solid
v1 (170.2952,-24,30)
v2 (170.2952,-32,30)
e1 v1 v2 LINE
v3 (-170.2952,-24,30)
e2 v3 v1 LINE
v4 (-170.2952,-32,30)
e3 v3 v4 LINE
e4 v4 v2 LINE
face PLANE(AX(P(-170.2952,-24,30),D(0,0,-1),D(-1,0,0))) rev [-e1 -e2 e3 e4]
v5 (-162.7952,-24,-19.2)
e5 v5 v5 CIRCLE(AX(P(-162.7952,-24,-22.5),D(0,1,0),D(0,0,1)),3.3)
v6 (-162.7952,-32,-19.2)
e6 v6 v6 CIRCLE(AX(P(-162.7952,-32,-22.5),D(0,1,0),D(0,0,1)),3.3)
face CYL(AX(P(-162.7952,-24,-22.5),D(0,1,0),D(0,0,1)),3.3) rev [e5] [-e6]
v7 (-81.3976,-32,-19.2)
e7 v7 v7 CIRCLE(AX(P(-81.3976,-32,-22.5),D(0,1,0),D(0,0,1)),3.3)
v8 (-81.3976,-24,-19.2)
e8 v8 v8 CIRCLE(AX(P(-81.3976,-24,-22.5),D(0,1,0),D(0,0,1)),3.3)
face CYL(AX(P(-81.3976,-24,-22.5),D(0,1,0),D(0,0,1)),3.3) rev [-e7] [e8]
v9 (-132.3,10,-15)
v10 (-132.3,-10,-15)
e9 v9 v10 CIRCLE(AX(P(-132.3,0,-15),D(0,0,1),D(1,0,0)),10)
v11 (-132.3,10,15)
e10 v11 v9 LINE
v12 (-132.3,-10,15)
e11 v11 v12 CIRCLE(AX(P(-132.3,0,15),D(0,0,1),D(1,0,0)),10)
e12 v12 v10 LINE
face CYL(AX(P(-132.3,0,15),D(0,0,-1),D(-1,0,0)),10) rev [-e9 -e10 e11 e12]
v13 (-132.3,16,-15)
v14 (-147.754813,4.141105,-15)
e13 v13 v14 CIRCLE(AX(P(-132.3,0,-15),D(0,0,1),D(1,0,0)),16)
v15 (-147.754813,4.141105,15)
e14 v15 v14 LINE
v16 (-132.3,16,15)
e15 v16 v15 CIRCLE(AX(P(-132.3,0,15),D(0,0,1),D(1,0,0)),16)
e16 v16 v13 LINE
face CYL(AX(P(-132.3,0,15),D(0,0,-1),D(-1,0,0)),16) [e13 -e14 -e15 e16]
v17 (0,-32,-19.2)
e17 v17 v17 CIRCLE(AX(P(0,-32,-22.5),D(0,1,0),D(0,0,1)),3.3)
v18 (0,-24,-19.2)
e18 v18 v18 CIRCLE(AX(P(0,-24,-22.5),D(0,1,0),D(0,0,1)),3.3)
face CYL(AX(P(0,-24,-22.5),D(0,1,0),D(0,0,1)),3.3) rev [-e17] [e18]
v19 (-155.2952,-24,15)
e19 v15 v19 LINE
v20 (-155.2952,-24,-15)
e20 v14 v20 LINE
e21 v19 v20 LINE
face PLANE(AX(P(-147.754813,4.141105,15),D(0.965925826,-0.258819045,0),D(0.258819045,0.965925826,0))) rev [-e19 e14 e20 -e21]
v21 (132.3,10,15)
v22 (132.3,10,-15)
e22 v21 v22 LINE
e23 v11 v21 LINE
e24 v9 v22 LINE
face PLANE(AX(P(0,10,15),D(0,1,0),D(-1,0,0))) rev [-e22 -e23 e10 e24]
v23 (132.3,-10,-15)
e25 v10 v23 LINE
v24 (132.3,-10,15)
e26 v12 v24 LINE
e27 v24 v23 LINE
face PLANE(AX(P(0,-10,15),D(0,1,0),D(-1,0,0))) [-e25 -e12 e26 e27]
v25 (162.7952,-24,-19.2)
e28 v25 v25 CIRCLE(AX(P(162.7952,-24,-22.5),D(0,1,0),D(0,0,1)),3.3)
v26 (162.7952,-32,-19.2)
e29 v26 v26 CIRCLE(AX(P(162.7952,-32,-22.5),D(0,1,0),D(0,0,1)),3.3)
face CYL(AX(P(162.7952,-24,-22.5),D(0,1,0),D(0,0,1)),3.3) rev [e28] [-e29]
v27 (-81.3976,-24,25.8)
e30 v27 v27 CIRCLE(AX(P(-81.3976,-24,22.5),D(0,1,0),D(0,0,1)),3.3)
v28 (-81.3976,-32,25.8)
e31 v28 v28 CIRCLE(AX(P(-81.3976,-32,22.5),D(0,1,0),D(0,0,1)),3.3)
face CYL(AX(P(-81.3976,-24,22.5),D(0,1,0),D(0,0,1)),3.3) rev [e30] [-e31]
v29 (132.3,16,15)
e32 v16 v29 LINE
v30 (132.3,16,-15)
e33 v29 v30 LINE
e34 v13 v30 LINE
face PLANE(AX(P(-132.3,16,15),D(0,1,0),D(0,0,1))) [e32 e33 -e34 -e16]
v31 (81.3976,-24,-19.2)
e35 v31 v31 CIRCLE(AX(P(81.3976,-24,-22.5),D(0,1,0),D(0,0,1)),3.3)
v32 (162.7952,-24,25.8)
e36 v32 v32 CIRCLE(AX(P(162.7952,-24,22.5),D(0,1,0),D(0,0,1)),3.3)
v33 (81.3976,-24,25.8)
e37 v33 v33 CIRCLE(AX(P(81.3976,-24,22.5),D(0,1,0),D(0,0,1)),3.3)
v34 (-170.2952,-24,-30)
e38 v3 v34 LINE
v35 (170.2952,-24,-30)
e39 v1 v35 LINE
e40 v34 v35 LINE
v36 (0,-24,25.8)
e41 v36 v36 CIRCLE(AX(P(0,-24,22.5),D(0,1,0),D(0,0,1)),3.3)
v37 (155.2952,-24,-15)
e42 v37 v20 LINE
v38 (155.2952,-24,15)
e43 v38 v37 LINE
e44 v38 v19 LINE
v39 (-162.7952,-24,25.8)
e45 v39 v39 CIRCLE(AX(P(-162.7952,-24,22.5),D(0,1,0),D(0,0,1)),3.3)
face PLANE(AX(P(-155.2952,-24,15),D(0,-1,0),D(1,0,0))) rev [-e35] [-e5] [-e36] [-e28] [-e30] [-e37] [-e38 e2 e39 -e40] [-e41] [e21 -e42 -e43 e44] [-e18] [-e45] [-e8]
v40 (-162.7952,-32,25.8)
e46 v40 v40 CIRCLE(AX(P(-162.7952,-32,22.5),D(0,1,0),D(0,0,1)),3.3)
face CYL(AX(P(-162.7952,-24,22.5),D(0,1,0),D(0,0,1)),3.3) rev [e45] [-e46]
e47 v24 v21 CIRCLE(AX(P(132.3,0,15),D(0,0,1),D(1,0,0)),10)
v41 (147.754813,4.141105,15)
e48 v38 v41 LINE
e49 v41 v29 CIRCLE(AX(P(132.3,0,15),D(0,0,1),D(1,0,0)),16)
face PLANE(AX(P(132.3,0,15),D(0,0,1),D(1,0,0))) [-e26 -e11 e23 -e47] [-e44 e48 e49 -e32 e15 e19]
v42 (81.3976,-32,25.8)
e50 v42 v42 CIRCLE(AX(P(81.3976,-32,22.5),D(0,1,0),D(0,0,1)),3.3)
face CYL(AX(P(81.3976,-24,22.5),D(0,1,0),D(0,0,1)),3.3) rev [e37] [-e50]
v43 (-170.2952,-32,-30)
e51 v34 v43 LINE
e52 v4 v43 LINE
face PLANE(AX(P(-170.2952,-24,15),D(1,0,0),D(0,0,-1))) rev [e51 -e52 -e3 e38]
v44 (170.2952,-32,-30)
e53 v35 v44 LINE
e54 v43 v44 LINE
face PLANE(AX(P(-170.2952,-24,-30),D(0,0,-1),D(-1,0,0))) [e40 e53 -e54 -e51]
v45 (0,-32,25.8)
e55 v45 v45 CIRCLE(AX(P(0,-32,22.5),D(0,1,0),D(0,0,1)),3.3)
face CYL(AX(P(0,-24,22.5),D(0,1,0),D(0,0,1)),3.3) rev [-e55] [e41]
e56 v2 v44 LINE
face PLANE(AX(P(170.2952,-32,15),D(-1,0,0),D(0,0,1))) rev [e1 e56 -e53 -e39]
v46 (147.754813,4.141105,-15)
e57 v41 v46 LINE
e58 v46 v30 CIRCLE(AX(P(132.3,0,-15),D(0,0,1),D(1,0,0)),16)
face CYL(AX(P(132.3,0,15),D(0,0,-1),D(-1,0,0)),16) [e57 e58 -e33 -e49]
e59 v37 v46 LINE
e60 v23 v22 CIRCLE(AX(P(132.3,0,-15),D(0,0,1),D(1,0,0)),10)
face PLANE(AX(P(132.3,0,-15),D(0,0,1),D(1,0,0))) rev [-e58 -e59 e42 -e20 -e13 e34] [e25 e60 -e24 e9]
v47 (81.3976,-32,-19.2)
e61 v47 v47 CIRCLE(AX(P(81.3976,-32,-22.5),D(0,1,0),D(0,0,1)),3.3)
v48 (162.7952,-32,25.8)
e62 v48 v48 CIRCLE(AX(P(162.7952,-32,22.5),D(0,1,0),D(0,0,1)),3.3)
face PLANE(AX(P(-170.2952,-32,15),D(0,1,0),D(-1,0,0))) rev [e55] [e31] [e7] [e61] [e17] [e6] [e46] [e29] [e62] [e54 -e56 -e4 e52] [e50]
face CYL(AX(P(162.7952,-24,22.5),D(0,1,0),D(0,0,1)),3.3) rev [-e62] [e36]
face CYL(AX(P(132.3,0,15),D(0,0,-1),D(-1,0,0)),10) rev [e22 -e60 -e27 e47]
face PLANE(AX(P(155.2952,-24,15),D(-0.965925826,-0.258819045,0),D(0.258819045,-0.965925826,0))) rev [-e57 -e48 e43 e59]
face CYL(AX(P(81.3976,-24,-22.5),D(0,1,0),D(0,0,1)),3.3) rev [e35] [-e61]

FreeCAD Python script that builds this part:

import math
import FreeCAD as App
import Part
import Sketcher
Q = App.Units.Quantity


def add_polygon(sketch, points):
    """Adds a closed chain of lines whose ends are joined by coincident constraints."""
    first, n = sketch.GeometryCount, len(points)
    for a, b in zip(points, points[1:] + points[:1]):
        sketch.addGeometry(Part.LineSegment(App.Vector(*a, 0), App.Vector(*b, 0)), False)
    for i in range(n):
        sketch.addConstraint(Sketcher.Constraint("Coincident", first + i, 2, first + (i + 1) % n, 1))

doc = App.newDocument("Part")
body = doc.addObject("PartDesign::Body", "Body")

# Sketch on XY plane
sketch1 = body.newObject("Sketcher::SketchObject", "Sketch")
sketch1.AttachmentSupport = (doc.getObject("XY_Plane"), [""])
sketch1.MapMode = "FlatFace"
sketch1.addGeometry(Part.LineSegment(App.Vector(132, 16, 0), App.Vector(-132, 16, 0)), False)
sketch1.addGeometry(Part.ArcOfCircle(Part.Circle(App.Vector(-132, 0, 0), App.Vector(0, 0, 1), 16), math.radians(90), math.radians(165)), False)
sketch1.addGeometry(Part.LineSegment(App.Vector(-148, 4, 0), App.Vector(-155, -24, 0)), False)
sketch1.addGeometry(Part.LineSegment(App.Vector(-155, -24, 0), App.Vector(-170, -24, 0)), False)
sketch1.addGeometry(Part.LineSegment(App.Vector(-170, -24, 0), App.Vector(-170, -32, 0)), False)
sketch1.addGeometry(Part.LineSegment(App.Vector(-170, -32, 0), App.Vector(170, -32, 0)), False)
sketch1.addGeometry(Part.LineSegment(App.Vector(170, -32, 0), App.Vector(170, -24, 0)), False)
sketch1.addGeometry(Part.LineSegment(App.Vector(170, -24, 0), App.Vector(155, -24, 0)), False)
sketch1.addGeometry(Part.LineSegment(App.Vector(155, -24, 0), App.Vector(148, 4, 0)), False)
sketch1.addGeometry(Part.ArcOfCircle(Part.Circle(App.Vector(132, 0, 0), App.Vector(0, 0, 1), 16), math.radians(15), math.radians(90)), False)
sketch1.addGeometry(Part.LineSegment(App.Vector(-132, 10, 0), App.Vector(132, 10, 0)), False)
sketch1.addGeometry(Part.ArcOfCircle(Part.Circle(App.Vector(132, 0, 0), App.Vector(0, 0, 1), 10), math.radians(-90), math.radians(90)), False)
sketch1.addGeometry(Part.LineSegment(App.Vector(132, -10, 0), App.Vector(-132, -10, 0)), False)
sketch1.addGeometry(Part.ArcOfCircle(Part.Circle(App.Vector(-132, 0, 0), App.Vector(0, 0, 1), 10), math.radians(90), math.radians(270)), False)
sketch1.addConstraint(Sketcher.Constraint("Tangent", 0, 2, 1, 1))
sketch1.addConstraint(Sketcher.Constraint("Tangent", 1, 2, 2, 1))
sketch1.addConstraint(Sketcher.Constraint("Coincident", 2, 2, 3, 1))
sketch1.addConstraint(Sketcher.Constraint("Coincident", 3, 2, 4, 1))
sketch1.addConstraint(Sketcher.Constraint("Coincident", 4, 2, 5, 1))
sketch1.addConstraint(Sketcher.Constraint("Coincident", 5, 2, 6, 1))
sketch1.addConstraint(Sketcher.Constraint("Coincident", 6, 2, 7, 1))
sketch1.addConstraint(Sketcher.Constraint("Coincident", 7, 2, 8, 1))
sketch1.addConstraint(Sketcher.Constraint("Tangent", 8, 2, 9, 1))
sketch1.addConstraint(Sketcher.Constraint("Tangent", 9, 2, 0, 1))
sketch1.addConstraint(Sketcher.Constraint("Tangent", 10, 2, 11, 2))
sketch1.addConstraint(Sketcher.Constraint("Tangent", 11, 1, 12, 1))
sketch1.addConstraint(Sketcher.Constraint("Tangent", 12, 2, 13, 2))
sketch1.addConstraint(Sketcher.Constraint("Tangent", 13, 1, 10, 1))
sketch1.addConstraint(Sketcher.Constraint("Horizontal", 0))
sketch1.addConstraint(Sketcher.Constraint("Horizontal", 3))
sketch1.addConstraint(Sketcher.Constraint("Vertical", 4))
sketch1.addConstraint(Sketcher.Constraint("Horizontal", 5))
sketch1.addConstraint(Sketcher.Constraint("Vertical", 6))
sketch1.addConstraint(Sketcher.Constraint("Horizontal", 7))
sketch1.addConstraint(Sketcher.Constraint("Horizontal", 10))
sketch1.addConstraint(Sketcher.Constraint("Horizontal", 12))
sketch1.addConstraint(Sketcher.Constraint("Coincident", 11, 3, 9, 3))
sketch1.addConstraint(Sketcher.Constraint("Coincident", 13, 3, 1, 3))
sketch1.addConstraint(Sketcher.Constraint("Symmetric", 1, 3, 9, 3, -1, 1))
sketch1.addConstraint(Sketcher.Constraint("Symmetric", 3, 2, 6, 2, -2))
sketch1.addConstraint(Sketcher.Constraint("Horizontal", 1, 2, 8, 2))
sketch1.addConstraint(Sketcher.Constraint("Radius", 1, Q("16 mm")))
sketch1.addConstraint(Sketcher.Constraint("Radius", 11, Q("10 mm")))
sketch1.addConstraint(Sketcher.Constraint("DistanceX", 3, 2, 3, 1, Q("15 mm")))
sketch1.addConstraint(Sketcher.Constraint("DistanceY", 4, 2, 4, 1, Q("8 mm")))
sketch1.addConstraint(Sketcher.Constraint("Angle", 2, Q("-105 deg")))
sketch1.addConstraint(Sketcher.Constraint("DistanceX", 0, 2, 0, 1, Q("264.6 mm")))
sketch1.addConstraint(Sketcher.Constraint("DistanceY", 2, 2, -1, 1, Q("24 mm")))
pad1 = body.newObject("PartDesign::Pad", "Pad")
pad1.Profile = sketch1
pad1.Length = 30
pad1.Midplane = True

# Sketch on XZ plane
sketch2 = body.newObject("Sketcher::SketchObject", "Sketch001")
sketch2.AttachmentSupport = (doc.getObject("XZ_Plane"), [""])
sketch2.MapMode = "FlatFace"
sketch2.AttachmentOffset = App.Placement(App.Vector(0, 0, 32), App.Rotation())
add_polygon(sketch2, [(-170, 30), (-170, 15), (170, 15), (170, 30)])  # lines 0-3
sketch2.addConstraint(Sketcher.Constraint("Vertical", 0))
sketch2.addConstraint(Sketcher.Constraint("Horizontal", 1))
sketch2.addConstraint(Sketcher.Constraint("Vertical", 2))
sketch2.addConstraint(Sketcher.Constraint("Horizontal", 3))
sketch2.addConstraint(Sketcher.Constraint("DistanceY", 0, 2, 0, 1, Q("15 mm")))
sketch2.addConstraint(Sketcher.Constraint("DistanceY", -1, 1, 0, 2, Q("15 mm")))
sketch2.addConstraint(Sketcher.Constraint("DistanceX", 1, 1, 1, 2, Q("340.590399 mm")))
sketch2.addConstraint(Sketcher.Constraint("DistanceX", 0, 2, -1, 1, Q("170.2952 mm")))
pad2 = body.newObject("PartDesign::Pad", "Pad001")
pad2.Profile = sketch2
pad2.Length = 8
pad2.Reversed = True
doc.recompute()

mirrored = body.newObject("PartDesign::Mirrored", "Mirrored")
mirrored.Originals = [pad2]
mirrored.MirrorPlane = (doc.getObject("XY_Plane"), [""])
body.Tip = mirrored

# Sketch on XZ plane
sketch3 = body.newObject("Sketcher::SketchObject", "Sketch002")
sketch3.AttachmentSupport = (doc.getObject("XZ_Plane"), [""])
sketch3.MapMode = "FlatFace"
sketch3.AttachmentOffset = App.Placement(App.Vector(0, 0, 24), App.Rotation())
sketch3.addGeometry(Part.Circle(App.Vector(-162.8, -22.5, 0), App.Vector(0, 0, 1), 3.3), False)
sketch3.addGeometry(Part.Circle(App.Vector(-162.8, 22.5, 0), App.Vector(0, 0, 1), 3.3), False)
sketch3.addGeometry(Part.Circle(App.Vector(-81.4, 22.5, 0), App.Vector(0, 0, 1), 3.3), False)
sketch3.addGeometry(Part.Circle(App.Vector(-81.4, -22.5, 0), App.Vector(0, 0, 1), 3.3), False)
sketch3.addGeometry(Part.Circle(App.Vector(0, 22.5, 0), App.Vector(0, 0, 1), 3.3), False)
sketch3.addGeometry(Part.Circle(App.Vector(0, -22.5, 0), App.Vector(0, 0, 1), 3.3), False)
sketch3.addGeometry(Part.Circle(App.Vector(81.4, 22.5, 0), App.Vector(0, 0, 1), 3.3), False)
sketch3.addGeometry(Part.Circle(App.Vector(81.4, -22.5, 0), App.Vector(0, 0, 1), 3.3), False)
sketch3.addGeometry(Part.Circle(App.Vector(162.8, -22.5, 0), App.Vector(0, 0, 1), 3.3), False)
sketch3.addGeometry(Part.Circle(App.Vector(162.8, 22.5, 0), App.Vector(0, 0, 1), 3.3), False)
sketch3.addConstraint(Sketcher.Constraint("Equal", 0, 1))
sketch3.addConstraint(Sketcher.Constraint("Equal", 1, 2))
sketch3.addConstraint(Sketcher.Constraint("Equal", 2, 3))
sketch3.addConstraint(Sketcher.Constraint("Equal", 3, 4))
sketch3.addConstraint(Sketcher.Constraint("Equal", 4, 5))
sketch3.addConstraint(Sketcher.Constraint("Equal", 5, 6))
sketch3.addConstraint(Sketcher.Constraint("Equal", 6, 7))
sketch3.addConstraint(Sketcher.Constraint("Equal", 7, 8))
sketch3.addConstraint(Sketcher.Constraint("Equal", 8, 9))
sketch3.addConstraint(Sketcher.Constraint("Symmetric", 4, 3, 5, 3, -1, 1))
sketch3.addConstraint(Sketcher.Constraint("Symmetric", 3, 3, 6, 3, -1, 1))
sketch3.addConstraint(Sketcher.Constraint("Symmetric", 2, 3, 7, 3, -1, 1))
sketch3.addConstraint(Sketcher.Constraint("Symmetric", 1, 3, 8, 3, -1, 1))
sketch3.addConstraint(Sketcher.Constraint("Symmetric", 0, 3, 9, 3, -1, 1))
sketch3.addConstraint(Sketcher.Constraint("Symmetric", 2, 3, 6, 3, -2))
sketch3.addConstraint(Sketcher.Constraint("Symmetric", 0, 3, 8, 3, -2))
sketch3.addConstraint(Sketcher.Constraint("PointOnObject", 4, 3, -2))
sketch3.addConstraint(Sketcher.Constraint("Horizontal", 1, 3, 2, 3))
sketch3.addConstraint(Sketcher.Constraint("Horizontal", 2, 3, 4, 3))
sketch3.addConstraint(Sketcher.Constraint("Diameter", 0, Q("6.6 mm")))
sketch3.addConstraint(Sketcher.Constraint("DistanceY", 0, 3, 1, 3, Q("45 mm")))
sketch3.addConstraint(Sketcher.Constraint("DistanceX", 0, 3, -1, 1, Q("162.7952 mm")))
sketch3.addConstraint(Sketcher.Constraint("DistanceX", 2, 3, -1, 1, Q("81.3976 mm")))
doc.recompute()
hole = body.newObject("PartDesign::Hole", "Hole")
hole.Profile = sketch3
hole.ThreadType = "None"
hole.Diameter = 6.6
hole.DepthType = "ThroughAll"
hole.Reversed = True

doc.recompute()
